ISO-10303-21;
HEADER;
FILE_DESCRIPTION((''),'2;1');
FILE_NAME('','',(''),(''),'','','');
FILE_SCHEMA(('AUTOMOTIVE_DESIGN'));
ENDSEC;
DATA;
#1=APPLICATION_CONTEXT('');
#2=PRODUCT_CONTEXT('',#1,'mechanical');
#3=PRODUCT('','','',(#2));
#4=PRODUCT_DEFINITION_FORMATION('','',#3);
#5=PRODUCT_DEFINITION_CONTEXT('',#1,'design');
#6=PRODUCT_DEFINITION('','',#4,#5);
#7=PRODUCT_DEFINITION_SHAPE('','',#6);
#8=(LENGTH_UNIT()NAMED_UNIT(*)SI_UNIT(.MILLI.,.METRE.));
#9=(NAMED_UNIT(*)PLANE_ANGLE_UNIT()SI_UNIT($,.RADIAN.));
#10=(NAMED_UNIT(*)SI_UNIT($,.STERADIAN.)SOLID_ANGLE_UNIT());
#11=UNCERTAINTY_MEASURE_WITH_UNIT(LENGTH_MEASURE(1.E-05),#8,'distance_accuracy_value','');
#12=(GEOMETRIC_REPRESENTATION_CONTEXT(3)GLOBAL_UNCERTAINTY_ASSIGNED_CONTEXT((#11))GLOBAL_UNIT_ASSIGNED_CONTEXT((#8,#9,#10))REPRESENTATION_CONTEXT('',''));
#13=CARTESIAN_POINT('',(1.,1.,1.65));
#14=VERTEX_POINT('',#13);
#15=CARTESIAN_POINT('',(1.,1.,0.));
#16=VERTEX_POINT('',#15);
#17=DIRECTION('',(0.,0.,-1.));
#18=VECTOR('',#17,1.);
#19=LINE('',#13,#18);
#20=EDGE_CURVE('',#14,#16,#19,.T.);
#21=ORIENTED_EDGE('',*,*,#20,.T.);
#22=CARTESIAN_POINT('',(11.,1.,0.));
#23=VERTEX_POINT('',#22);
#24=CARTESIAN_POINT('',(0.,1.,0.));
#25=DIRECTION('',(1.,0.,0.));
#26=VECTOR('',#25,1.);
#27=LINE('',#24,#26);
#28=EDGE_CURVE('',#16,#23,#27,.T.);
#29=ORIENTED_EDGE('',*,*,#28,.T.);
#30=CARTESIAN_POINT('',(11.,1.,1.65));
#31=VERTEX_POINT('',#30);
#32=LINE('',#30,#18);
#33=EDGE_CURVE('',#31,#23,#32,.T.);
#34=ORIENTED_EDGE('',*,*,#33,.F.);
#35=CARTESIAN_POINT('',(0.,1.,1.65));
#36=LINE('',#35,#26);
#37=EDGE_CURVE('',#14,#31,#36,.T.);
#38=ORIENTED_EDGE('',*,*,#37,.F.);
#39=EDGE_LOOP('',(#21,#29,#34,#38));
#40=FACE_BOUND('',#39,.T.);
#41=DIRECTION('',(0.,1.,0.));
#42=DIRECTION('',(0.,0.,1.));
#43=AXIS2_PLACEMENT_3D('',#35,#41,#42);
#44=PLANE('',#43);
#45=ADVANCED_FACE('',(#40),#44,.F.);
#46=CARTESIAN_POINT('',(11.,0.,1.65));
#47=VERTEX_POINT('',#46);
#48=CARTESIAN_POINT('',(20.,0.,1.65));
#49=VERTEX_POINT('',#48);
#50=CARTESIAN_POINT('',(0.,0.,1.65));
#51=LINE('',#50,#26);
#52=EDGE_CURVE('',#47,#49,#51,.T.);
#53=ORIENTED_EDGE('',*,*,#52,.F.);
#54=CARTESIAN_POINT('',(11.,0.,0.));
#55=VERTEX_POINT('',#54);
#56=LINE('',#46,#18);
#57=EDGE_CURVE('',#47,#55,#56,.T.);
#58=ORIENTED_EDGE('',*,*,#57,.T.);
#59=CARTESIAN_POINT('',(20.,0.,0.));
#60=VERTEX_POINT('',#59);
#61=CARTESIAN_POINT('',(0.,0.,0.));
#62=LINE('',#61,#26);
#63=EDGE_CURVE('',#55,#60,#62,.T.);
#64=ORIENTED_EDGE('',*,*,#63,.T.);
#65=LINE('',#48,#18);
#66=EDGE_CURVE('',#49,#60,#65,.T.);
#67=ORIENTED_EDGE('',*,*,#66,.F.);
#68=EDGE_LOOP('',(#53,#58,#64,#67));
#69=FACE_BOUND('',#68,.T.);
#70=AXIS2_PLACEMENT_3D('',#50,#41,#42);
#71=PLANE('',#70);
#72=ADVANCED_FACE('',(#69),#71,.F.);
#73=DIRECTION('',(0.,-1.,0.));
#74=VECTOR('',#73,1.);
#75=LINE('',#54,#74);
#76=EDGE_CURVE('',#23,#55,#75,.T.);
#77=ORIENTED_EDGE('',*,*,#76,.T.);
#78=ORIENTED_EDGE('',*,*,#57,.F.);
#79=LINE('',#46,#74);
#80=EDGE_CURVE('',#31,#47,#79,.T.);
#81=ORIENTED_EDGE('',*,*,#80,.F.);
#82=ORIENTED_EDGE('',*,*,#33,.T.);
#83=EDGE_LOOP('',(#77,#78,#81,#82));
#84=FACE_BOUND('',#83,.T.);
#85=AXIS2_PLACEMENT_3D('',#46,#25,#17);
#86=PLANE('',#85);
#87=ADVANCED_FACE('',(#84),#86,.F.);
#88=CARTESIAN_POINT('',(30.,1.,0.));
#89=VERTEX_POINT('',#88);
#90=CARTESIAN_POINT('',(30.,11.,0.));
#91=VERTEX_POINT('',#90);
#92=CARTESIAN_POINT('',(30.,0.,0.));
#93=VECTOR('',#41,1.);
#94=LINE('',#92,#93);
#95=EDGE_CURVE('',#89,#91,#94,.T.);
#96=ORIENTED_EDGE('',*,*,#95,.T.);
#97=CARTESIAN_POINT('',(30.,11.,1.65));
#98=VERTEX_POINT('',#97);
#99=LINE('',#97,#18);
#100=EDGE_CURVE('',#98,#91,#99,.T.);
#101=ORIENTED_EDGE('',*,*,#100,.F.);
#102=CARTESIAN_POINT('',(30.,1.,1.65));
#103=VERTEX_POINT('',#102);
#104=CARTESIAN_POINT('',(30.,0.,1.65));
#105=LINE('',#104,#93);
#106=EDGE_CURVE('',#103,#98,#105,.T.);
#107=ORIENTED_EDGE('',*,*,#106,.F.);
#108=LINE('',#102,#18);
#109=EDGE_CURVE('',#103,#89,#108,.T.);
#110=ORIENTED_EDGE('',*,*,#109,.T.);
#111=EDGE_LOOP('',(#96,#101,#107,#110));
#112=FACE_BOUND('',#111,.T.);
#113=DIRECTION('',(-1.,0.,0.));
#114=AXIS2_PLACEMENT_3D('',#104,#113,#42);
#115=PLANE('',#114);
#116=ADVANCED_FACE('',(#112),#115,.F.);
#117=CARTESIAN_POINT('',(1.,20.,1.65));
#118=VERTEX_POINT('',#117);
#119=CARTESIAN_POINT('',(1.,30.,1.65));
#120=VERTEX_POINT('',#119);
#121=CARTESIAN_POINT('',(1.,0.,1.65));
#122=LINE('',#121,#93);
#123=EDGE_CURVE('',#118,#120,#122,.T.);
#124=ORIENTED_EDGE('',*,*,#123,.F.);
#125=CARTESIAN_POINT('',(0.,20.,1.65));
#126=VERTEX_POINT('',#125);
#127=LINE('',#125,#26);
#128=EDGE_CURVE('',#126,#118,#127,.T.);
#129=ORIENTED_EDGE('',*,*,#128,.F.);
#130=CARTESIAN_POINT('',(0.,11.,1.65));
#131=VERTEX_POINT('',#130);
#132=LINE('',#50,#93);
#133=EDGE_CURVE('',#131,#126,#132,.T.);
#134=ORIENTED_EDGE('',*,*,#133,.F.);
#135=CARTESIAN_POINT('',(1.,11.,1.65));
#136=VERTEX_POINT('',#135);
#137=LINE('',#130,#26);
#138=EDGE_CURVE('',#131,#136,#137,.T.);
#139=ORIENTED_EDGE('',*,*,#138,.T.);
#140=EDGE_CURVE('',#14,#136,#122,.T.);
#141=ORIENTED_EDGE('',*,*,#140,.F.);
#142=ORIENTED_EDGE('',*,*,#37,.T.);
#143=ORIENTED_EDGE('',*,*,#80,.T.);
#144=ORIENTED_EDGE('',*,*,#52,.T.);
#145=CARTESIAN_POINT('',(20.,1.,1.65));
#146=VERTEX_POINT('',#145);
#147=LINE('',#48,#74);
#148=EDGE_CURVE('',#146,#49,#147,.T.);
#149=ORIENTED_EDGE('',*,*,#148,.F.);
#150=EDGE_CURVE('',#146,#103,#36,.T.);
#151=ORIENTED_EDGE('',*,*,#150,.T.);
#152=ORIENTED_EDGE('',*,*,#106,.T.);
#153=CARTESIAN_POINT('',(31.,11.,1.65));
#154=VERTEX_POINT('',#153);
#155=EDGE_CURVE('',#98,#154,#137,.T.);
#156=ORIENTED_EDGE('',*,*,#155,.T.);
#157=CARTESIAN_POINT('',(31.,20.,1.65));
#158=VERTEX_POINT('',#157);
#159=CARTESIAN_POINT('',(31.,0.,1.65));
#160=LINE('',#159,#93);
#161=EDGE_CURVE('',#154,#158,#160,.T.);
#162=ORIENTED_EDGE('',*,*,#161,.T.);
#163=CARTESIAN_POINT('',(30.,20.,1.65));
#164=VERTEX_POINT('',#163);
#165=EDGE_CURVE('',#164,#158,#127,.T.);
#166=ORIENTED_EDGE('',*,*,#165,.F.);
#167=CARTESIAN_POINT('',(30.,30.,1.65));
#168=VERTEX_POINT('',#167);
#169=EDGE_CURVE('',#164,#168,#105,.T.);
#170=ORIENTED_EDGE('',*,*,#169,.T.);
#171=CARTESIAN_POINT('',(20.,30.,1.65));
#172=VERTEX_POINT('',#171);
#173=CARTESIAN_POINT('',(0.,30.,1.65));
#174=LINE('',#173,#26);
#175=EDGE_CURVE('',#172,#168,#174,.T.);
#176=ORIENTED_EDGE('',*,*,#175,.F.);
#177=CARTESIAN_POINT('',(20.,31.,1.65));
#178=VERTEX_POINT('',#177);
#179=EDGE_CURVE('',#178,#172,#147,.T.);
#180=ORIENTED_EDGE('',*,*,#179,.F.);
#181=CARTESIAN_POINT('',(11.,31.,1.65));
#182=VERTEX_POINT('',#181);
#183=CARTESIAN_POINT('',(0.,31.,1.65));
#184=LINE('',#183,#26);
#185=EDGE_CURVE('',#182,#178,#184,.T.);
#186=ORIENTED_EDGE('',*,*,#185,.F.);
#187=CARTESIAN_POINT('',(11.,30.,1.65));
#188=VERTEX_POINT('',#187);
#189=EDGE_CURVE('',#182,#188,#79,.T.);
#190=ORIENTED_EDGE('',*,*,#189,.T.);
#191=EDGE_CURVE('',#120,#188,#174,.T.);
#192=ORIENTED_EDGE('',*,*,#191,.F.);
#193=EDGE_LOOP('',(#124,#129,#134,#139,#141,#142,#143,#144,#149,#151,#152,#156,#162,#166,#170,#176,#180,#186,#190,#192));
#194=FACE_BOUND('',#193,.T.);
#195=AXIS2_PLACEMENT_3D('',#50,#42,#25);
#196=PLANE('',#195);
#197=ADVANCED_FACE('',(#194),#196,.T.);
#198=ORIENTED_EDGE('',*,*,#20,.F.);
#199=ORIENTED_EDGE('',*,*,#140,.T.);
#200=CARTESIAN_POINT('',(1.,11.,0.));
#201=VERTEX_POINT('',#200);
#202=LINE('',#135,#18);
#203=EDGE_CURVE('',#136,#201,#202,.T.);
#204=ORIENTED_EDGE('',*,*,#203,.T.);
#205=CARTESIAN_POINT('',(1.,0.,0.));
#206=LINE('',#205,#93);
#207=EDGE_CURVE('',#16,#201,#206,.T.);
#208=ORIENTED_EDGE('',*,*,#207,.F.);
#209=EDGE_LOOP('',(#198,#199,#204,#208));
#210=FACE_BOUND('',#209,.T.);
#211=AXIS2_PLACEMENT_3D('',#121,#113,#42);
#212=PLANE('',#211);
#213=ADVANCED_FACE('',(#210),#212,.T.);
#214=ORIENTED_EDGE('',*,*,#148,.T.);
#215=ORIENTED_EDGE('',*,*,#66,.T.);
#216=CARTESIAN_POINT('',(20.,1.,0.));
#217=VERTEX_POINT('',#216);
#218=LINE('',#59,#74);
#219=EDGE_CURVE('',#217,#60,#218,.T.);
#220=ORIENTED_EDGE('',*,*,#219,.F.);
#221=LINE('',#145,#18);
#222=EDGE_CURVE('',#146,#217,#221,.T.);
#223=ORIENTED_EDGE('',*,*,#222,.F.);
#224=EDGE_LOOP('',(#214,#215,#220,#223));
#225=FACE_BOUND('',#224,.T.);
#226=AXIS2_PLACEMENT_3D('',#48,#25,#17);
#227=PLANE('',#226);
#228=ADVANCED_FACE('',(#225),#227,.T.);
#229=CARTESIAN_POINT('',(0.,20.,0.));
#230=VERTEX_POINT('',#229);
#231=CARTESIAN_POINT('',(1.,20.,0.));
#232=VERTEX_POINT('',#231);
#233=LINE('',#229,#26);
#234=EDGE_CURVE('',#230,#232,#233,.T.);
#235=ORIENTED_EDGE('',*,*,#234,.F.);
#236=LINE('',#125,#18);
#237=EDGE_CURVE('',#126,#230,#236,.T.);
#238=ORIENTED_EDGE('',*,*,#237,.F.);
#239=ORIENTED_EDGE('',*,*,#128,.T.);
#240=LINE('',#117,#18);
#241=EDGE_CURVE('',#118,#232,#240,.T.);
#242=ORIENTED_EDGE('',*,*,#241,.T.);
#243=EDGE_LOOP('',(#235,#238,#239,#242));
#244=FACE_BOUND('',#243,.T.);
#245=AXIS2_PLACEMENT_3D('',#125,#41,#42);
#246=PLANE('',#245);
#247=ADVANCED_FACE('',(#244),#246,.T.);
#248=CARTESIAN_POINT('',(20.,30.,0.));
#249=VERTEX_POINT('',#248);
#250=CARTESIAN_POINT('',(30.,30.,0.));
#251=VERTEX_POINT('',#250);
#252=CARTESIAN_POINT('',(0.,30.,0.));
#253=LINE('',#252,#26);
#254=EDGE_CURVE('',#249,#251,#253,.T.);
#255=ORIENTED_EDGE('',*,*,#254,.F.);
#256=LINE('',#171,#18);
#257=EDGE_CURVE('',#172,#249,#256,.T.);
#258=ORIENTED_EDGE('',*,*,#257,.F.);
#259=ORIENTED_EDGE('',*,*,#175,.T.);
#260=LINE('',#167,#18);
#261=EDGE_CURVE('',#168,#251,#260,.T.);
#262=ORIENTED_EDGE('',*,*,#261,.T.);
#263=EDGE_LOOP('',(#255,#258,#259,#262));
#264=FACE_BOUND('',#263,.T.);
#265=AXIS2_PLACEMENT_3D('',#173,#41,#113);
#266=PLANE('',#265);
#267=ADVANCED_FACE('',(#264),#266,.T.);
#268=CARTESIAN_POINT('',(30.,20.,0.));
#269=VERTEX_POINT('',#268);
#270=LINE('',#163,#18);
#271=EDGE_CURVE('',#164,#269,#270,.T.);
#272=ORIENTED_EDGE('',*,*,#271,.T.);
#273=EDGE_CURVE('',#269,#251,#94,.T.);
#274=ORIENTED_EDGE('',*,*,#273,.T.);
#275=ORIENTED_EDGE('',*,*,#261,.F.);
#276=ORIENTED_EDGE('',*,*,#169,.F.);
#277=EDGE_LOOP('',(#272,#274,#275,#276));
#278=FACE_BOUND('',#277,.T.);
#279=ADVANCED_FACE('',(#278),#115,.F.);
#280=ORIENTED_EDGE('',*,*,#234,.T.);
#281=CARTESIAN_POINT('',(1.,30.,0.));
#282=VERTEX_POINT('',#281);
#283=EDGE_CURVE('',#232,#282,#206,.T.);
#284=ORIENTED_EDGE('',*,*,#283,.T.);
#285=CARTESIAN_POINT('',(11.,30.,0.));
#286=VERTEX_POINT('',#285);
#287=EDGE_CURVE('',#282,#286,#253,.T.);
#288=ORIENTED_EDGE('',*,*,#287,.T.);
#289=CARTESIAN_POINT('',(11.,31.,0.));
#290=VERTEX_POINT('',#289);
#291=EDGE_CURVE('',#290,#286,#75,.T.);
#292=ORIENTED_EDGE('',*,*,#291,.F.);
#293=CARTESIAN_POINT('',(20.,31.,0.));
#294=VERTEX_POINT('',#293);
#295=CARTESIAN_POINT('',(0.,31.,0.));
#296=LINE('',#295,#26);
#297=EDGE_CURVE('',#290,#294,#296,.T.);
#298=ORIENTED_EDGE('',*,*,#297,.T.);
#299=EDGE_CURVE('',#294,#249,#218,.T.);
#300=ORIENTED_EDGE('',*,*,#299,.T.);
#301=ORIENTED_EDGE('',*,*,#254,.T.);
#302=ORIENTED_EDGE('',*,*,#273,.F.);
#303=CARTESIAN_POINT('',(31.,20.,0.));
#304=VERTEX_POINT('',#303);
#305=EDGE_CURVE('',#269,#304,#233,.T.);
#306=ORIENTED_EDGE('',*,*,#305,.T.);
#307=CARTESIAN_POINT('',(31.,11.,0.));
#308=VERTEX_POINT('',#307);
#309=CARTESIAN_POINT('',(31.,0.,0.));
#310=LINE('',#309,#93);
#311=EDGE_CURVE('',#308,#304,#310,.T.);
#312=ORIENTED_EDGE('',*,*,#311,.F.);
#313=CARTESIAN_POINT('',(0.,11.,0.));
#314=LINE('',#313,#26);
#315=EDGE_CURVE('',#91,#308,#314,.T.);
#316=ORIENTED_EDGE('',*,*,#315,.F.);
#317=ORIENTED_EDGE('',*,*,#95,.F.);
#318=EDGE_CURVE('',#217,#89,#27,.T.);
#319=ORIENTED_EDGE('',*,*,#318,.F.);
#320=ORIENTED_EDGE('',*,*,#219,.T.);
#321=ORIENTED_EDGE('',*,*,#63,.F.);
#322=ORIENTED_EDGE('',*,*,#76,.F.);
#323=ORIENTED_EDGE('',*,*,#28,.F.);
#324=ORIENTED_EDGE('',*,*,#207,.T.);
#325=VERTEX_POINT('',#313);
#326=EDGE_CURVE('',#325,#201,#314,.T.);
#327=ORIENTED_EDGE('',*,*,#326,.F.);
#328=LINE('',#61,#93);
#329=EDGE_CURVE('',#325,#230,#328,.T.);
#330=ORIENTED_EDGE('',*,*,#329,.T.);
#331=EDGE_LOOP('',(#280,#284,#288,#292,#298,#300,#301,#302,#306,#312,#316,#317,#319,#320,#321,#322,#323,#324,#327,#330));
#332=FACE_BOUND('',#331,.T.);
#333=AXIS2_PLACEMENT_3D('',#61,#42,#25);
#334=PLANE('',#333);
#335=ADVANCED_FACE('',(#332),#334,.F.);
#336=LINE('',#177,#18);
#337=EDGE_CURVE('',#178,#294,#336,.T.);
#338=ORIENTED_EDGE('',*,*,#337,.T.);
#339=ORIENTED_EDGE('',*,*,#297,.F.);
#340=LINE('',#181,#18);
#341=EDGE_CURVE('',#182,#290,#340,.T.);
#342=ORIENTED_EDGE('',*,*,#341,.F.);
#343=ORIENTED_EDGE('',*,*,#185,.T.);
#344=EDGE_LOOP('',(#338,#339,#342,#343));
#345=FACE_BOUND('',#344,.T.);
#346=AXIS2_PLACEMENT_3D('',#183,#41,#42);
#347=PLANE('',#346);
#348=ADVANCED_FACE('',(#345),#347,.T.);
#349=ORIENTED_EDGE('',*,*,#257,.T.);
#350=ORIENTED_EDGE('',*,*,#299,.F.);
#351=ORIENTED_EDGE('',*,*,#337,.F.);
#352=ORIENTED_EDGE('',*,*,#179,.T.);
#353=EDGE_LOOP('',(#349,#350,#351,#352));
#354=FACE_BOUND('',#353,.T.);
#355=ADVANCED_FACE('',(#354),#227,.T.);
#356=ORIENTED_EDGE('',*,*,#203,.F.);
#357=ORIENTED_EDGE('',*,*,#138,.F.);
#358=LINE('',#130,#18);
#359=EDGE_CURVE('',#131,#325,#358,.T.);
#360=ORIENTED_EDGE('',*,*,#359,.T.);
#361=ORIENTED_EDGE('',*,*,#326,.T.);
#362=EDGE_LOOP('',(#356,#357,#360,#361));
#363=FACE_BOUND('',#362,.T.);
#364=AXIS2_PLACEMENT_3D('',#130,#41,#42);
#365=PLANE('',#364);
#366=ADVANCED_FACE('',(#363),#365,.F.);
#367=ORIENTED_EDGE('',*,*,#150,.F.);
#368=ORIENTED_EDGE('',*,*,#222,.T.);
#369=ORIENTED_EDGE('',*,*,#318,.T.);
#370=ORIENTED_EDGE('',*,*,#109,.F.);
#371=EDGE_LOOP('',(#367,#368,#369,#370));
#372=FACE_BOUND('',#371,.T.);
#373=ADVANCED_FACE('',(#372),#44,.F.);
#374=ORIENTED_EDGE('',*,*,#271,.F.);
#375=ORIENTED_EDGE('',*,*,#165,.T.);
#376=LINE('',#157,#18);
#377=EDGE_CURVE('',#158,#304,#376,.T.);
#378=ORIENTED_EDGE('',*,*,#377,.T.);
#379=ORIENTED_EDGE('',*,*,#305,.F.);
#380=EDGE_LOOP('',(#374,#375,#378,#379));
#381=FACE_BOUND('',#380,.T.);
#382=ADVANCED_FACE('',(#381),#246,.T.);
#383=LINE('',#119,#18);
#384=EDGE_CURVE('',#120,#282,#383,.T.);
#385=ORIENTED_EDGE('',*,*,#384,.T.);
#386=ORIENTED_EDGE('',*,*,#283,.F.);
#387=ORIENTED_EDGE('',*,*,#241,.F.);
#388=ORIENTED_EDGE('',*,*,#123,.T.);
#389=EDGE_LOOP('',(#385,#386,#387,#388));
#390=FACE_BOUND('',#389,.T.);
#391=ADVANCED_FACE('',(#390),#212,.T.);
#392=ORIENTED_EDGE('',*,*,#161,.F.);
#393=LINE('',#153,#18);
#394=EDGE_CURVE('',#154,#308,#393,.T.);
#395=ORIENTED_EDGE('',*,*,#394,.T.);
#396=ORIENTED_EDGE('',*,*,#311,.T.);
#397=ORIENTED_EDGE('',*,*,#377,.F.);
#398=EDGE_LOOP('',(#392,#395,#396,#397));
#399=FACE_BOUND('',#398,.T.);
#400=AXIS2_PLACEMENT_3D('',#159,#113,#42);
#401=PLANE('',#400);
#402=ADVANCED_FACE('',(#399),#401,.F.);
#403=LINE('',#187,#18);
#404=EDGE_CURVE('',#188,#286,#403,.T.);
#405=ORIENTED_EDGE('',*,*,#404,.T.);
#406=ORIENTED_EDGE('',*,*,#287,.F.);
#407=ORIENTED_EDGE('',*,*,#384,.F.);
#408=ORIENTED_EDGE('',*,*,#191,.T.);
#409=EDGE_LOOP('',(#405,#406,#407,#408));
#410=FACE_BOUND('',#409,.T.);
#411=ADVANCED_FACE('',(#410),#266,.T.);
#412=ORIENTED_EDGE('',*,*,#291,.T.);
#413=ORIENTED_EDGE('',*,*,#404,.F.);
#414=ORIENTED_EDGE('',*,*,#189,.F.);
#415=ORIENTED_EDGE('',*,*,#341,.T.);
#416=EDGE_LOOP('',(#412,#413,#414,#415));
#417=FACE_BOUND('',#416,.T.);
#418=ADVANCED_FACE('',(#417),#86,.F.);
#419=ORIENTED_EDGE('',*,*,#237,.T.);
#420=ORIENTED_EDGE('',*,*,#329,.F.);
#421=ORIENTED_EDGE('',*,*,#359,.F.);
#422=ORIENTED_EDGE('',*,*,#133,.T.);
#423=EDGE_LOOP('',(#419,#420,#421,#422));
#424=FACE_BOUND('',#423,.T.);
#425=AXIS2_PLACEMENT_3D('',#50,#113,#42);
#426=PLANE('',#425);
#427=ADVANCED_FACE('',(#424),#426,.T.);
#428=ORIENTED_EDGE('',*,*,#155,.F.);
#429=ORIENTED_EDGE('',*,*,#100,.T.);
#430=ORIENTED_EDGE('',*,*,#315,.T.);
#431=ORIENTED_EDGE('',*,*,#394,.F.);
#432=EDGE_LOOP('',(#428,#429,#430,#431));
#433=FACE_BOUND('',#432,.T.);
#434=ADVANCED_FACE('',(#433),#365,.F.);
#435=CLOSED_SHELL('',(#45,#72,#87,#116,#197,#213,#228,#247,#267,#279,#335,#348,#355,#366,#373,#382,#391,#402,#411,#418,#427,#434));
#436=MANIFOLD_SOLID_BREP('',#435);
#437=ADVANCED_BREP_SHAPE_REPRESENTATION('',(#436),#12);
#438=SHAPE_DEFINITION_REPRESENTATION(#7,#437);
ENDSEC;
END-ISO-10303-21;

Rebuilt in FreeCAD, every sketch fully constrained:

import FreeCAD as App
import Part
import Sketcher


def add_polygon(sketch, points):
    """Adds a closed chain of lines whose ends are joined by coincident constraints."""
    first, n = sketch.GeometryCount, len(points)
    for a, b in zip(points, points[1:] + points[:1]):
        sketch.addGeometry(Part.LineSegment(App.Vector(*a, 0), App.Vector(*b, 0)), False)
    for i in range(n):
        sketch.addConstraint(Sketcher.Constraint("Coincident", first + i, 2, first + (i + 1) % n, 1))

doc = App.newDocument("Part")
body = doc.addObject("PartDesign::Body", "Body")

# Sketch on XY plane
sketch1 = body.newObject("Sketcher::SketchObject", "Sketch")
sketch1.AttachmentSupport = (doc.getObject("XY_Plane"), [""])
sketch1.MapMode = "FlatFace"
add_polygon(sketch1, [(1, 11), (1, 1), (11, 1), (11, 0), (20, 0), (20, 1), (30, 1), (30, 11), (31, 11), (31, 20), (30, 20), (30, 30), (20, 30), (20, 31), (11, 31), (11, 30), (1, 30), (1, 20), (0, 20), (0, 11)])  # lines 0-19
sketch1.addConstraint([
    Sketcher.Constraint("Vertical", 0),
    Sketcher.Constraint("Horizontal", 1),
    Sketcher.Constraint("Vertical", 2),
    Sketcher.Constraint("Horizontal", 3),
    Sketcher.Constraint("Vertical", 4),
    Sketcher.Constraint("Horizontal", 5),
    Sketcher.Constraint("Vertical", 6),
    Sketcher.Constraint("Horizontal", 7),
    Sketcher.Constraint("Vertical", 8),
    Sketcher.Constraint("Horizontal", 9),
    Sketcher.Constraint("Vertical", 10),
    Sketcher.Constraint("Horizontal", 11),
    Sketcher.Constraint("Vertical", 12),
    Sketcher.Constraint("Horizontal", 13),
    Sketcher.Constraint("Vertical", 14),
    Sketcher.Constraint("Horizontal", 15),
    Sketcher.Constraint("Vertical", 16),
    Sketcher.Constraint("Horizontal", 17),
    Sketcher.Constraint("Vertical", 18),
    Sketcher.Constraint("Horizontal", 19),
    Sketcher.Constraint("PointOnObject", 2, 2, -1),
    Sketcher.Constraint("PointOnObject", 17, 2, -2),
    Sketcher.Constraint("Horizontal", 1, 2, 4, 2),
    Sketcher.Constraint("Horizontal", 11, 2, 14, 2),
    Sketcher.Constraint("Horizontal", 9, 2, 16, 2),
    Sketcher.Constraint("Horizontal", 7, 2, 18, 2),
    Sketcher.Constraint("Vertical", 6, 2, 9, 2),
    Sketcher.Constraint("Vertical", 4, 2, 11, 2),
    Sketcher.Constraint("Vertical", 2, 2, 13, 2),
    Sketcher.Constraint("Vertical", 0, 2, 15, 2),
    Sketcher.Constraint("Equal", 1, 5),
    Sketcher.Constraint("Equal", 9, 17),
    Sketcher.Constraint("Equal", 15, 0),
    Sketcher.Constraint("Equal", 19, 2),
    Sketcher.Constraint("Equal", 13, 8),
    Sketcher.Constraint("Equal", 6, 10),
    Sketcher.Constraint("Equal", 4, 12),
    Sketcher.Constraint("DistanceX", 1, 1, 1, 2, 10.0),
    Sketcher.Constraint("DistanceX", 3, 1, 3, 2, 9.0),
    Sketcher.Constraint("DistanceX", 7, 1, 7, 2, 1.0),
])
pad1 = body.newObject("PartDesign::Pad", "Pad")
pad1.Profile = sketch1
pad1.Length = 1.65

doc.recompute()
